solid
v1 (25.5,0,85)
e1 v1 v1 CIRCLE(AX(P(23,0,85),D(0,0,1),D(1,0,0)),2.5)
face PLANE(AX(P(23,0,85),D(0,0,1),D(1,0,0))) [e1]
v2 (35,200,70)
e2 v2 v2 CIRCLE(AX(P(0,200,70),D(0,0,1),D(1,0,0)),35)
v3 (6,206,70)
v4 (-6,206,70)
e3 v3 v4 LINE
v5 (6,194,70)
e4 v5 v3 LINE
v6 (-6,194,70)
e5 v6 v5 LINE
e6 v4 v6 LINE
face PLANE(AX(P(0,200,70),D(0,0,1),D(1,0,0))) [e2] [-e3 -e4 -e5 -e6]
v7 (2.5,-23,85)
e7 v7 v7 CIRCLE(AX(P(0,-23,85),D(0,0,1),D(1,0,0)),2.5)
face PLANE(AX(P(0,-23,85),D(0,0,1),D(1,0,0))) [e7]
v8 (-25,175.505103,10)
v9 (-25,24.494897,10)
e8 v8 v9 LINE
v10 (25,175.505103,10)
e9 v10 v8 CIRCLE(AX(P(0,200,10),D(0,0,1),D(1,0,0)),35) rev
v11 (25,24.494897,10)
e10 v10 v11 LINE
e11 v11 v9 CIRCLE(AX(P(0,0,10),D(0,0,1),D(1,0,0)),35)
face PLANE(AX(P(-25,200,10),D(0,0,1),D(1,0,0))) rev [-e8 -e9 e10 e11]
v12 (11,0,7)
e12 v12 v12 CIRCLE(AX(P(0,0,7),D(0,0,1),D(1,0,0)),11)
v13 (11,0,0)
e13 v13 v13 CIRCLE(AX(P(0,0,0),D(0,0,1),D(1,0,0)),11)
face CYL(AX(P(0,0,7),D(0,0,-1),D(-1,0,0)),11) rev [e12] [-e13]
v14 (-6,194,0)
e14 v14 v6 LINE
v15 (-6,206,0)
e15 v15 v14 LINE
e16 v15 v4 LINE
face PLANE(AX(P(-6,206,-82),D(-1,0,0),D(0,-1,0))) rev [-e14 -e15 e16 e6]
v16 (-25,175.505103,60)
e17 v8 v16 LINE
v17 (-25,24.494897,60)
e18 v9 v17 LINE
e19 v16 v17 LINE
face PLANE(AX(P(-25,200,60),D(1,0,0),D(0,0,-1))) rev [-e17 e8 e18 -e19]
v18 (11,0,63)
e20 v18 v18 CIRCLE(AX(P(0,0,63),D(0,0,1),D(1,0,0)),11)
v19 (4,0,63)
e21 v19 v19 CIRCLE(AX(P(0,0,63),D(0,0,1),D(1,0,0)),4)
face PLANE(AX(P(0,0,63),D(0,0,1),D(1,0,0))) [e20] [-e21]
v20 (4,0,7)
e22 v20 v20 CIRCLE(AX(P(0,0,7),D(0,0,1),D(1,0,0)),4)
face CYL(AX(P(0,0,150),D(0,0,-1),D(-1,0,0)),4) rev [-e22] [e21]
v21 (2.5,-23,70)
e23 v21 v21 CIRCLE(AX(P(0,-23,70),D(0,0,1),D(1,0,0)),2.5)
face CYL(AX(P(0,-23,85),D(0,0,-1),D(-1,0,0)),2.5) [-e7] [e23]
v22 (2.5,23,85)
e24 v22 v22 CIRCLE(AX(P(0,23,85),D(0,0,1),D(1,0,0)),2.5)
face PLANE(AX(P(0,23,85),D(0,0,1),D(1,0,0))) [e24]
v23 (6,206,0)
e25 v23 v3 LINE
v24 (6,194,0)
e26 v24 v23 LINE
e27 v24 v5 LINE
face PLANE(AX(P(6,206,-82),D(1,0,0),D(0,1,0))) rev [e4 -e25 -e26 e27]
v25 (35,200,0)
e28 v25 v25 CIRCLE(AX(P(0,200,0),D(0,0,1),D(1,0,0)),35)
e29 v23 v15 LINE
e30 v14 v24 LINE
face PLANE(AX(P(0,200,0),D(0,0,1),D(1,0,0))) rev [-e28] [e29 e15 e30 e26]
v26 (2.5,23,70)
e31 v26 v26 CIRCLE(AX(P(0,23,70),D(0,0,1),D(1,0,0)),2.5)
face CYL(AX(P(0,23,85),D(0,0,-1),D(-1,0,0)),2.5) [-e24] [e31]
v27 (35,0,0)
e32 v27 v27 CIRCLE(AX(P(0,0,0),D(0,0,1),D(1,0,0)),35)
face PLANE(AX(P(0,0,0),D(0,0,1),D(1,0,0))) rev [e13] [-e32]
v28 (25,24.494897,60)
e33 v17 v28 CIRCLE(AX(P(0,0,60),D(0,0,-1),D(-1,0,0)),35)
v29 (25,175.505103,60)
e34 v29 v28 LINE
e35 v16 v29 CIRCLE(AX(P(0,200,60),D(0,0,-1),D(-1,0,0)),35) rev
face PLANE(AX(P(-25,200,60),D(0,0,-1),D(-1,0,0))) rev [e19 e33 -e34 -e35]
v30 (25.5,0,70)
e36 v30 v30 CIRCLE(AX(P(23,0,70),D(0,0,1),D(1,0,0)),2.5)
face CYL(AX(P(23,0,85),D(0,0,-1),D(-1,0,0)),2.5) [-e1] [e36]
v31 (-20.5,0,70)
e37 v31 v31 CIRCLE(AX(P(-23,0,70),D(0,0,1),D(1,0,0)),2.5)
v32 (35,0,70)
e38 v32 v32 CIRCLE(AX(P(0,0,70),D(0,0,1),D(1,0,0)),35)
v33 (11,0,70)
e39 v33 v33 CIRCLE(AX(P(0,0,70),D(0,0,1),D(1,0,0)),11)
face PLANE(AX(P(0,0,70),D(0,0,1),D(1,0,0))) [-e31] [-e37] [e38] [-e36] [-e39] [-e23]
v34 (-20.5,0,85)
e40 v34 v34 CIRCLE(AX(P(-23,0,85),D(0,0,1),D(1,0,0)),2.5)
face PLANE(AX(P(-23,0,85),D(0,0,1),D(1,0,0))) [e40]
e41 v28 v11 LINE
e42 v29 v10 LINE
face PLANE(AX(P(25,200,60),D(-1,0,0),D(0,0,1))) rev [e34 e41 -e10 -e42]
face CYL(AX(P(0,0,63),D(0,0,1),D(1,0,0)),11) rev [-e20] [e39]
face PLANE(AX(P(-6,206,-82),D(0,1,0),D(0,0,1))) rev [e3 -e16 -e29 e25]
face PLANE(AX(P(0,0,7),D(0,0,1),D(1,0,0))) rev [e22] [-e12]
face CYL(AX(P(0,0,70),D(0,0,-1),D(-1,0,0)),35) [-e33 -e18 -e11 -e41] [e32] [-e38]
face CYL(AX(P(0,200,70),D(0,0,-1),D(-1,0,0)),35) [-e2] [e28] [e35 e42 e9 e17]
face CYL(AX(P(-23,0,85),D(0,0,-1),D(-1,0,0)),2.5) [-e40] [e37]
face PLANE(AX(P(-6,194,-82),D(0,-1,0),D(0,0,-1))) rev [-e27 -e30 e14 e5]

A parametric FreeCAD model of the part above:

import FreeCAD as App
import Part
import Sketcher
Q = App.Units.Quantity


def add_polygon(sketch, points):
    """Adds a closed chain of lines whose ends are joined by coincident constraints."""
    first, n = sketch.GeometryCount, len(points)
    for a, b in zip(points, points[1:] + points[:1]):
        sketch.addGeometry(Part.LineSegment(App.Vector(*a, 0), App.Vector(*b, 0)), False)
    for i in range(n):
        sketch.addConstraint(Sketcher.Constraint("Coincident", first + i, 2, first + (i + 1) % n, 1))

doc = App.newDocument("Part")
body = doc.addObject("PartDesign::Body", "Body")

# Sketch on XY plane
sketch1 = body.newObject("Sketcher::SketchObject", "Sketch")
sketch1.AttachmentSupport = (doc.getObject("XY_Plane"), [""])
sketch1.MapMode = "FlatFace"
sketch1.addGeometry(Part.Circle(App.Vector(0, 0, 0), App.Vector(0, 0, 1), 35), False)
sketch1.addConstraint([
    Sketcher.Constraint("Coincident", 0, 3, -1, 1),
    Sketcher.Constraint("Diameter", 0, Q("70 mm")),
])
pad1 = body.newObject("PartDesign::Pad", "Pad")
pad1.Profile = sketch1
pad1.Length = 70

# Sketch on XZ plane
sketch2 = body.newObject("Sketcher::SketchObject", "Sketch001")
sketch2.AttachmentSupport = (doc.getObject("XZ_Plane"), [""])
sketch2.MapMode = "FlatFace"
add_polygon(sketch2, [(-25, 10), (-25, 60), (25, 60), (25, 10)])  # lines 0-3
sketch2.addConstraint([
    Sketcher.Constraint("Vertical", 0),
    Sketcher.Constraint("Horizontal", 1),
    Sketcher.Constraint("Vertical", 2),
    Sketcher.Constraint("Horizontal", 3),
    Sketcher.Constraint("Equal", 3, 0),
    Sketcher.Constraint("DistanceX", 1, 1, 1, 2, Q("50 mm")),
    Sketcher.Constraint("DistanceX", 0, 2, -1, 1, Q("25 mm")),
    Sketcher.Constraint("DistanceY", -1, 1, 0, 2, Q("60 mm")),
])
pad2 = body.newObject("PartDesign::Pad", "Pad001")
pad2.Profile = sketch2
pad2.Length = 200
pad2.Reversed = True

# Sketch on XY plane
sketch3 = body.newObject("Sketcher::SketchObject", "Sketch002")
sketch3.AttachmentSupport = (doc.getObject("XY_Plane"), [""])
sketch3.MapMode = "FlatFace"
sketch3.addGeometry(Part.Circle(App.Vector(0, 200, 0), App.Vector(0, 0, 1), 35), False)
sketch3.addConstraint([
    Sketcher.Constraint("PointOnObject", 0, 3, -2),
    Sketcher.Constraint("Diameter", 0, Q("70 mm")),
    Sketcher.Constraint("DistanceY", -1, 1, 0, 3, Q("200 mm")),
])
pad3 = body.newObject("PartDesign::Pad", "Pad002")
pad3.Profile = sketch3
pad3.Length = 70

# Sketch on XY plane
sketch4 = body.newObject("Sketcher::SketchObject", "Sketch003")
sketch4.AttachmentSupport = (doc.getObject("XY_Plane"), [""])
sketch4.MapMode = "FlatFace"
sketch4.addGeometry(Part.Circle(App.Vector(0, 0, 0), App.Vector(0, 0, 1), 4), False)
sketch4.addConstraint([
    Sketcher.Constraint("Coincident", 0, 3, -1, 1),
    Sketcher.Constraint("Diameter", 0, Q("8 mm")),
])
pocket1 = body.newObject("PartDesign::Pocket", "Pocket")
pocket1.Profile = sketch4
pocket1.Length = 150
pocket1.Reversed = True

# Sketch on XY plane
sketch5 = body.newObject("Sketcher::SketchObject", "Sketch004")
sketch5.AttachmentSupport = (doc.getObject("XY_Plane"), [""])
sketch5.MapMode = "FlatFace"
sketch5.addGeometry(Part.Circle(App.Vector(0, 0, 0), App.Vector(0, 0, 1), 11), False)
sketch5.addConstraint([
    Sketcher.Constraint("Coincident", 0, 3, -1, 1),
    Sketcher.Constraint("Diameter", 0, Q("22 mm")),
])
pocket2 = body.newObject("PartDesign::Pocket", "Pocket001")
pocket2.Profile = sketch5
pocket2.Length = 7
pocket2.Reversed = True

# Sketch on XY plane
sketch6 = body.newObject("Sketcher::SketchObject", "Sketch005")
sketch6.AttachmentSupport = (doc.getObject("XY_Plane"), [""])
sketch6.MapMode = "FlatFace"
sketch6.AttachmentOffset = App.Placement(App.Vector(0, 0, 63), App.Rotation())
sketch6.addGeometry(Part.Circle(App.Vector(0, 0, 0), App.Vector(0, 0, 1), 11), False)
sketch6.addConstraint([
    Sketcher.Constraint("Coincident", 0, 3, -1, 1),
    Sketcher.Constraint("Diameter", 0, Q("22 mm")),
])
pocket3 = body.newObject("PartDesign::Pocket", "Pocket002")
pocket3.Profile = sketch6
pocket3.Length = 7
pocket3.Reversed = True

# Sketch on XY plane
sketch7 = body.newObject("Sketcher::SketchObject", "Sketch006")
sketch7.AttachmentSupport = (doc.getObject("XY_Plane"), [""])
sketch7.MapMode = "FlatFace"
sketch7.AttachmentOffset = App.Placement(App.Vector(0, 0, 70), App.Rotation())
sketch7.addGeometry([
    Part.Circle(App.Vector(-23, 0, 0), App.Vector(0, 0, 1), 2.5),
    Part.Circle(App.Vector(0, -23, 0), App.Vector(0, 0, 1), 2.5),
    Part.Circle(App.Vector(23, 0, 0), App.Vector(0, 0, 1), 2.5),
    Part.Circle(App.Vector(0, 23, 0), App.Vector(0, 0, 1), 2.5),
], False)
sketch7.addConstraint([
    Sketcher.Constraint("Equal", 0, 1),
    Sketcher.Constraint("Equal", 1, 2),
    Sketcher.Constraint("Equal", 2, 3),
    Sketcher.Constraint("Symmetric", 0, 3, 2, 3, -1, 1),
    Sketcher.Constraint("Symmetric", 1, 3, 3, 3, -1, 1),
    Sketcher.Constraint("PointOnObject", 0, 3, -1),
    Sketcher.Constraint("PointOnObject", 1, 3, -2),
    Sketcher.Constraint("Diameter", 0, Q("5 mm")),
    Sketcher.Constraint("DistanceX", 0, 3, -1, 1, Q("23 mm")),
    Sketcher.Constraint("DistanceY", 1, 3, -1, 1, Q("23 mm")),
])
pad4 = body.newObject("PartDesign::Pad", "Pad003")
pad4.Profile = sketch7
pad4.Length = 15

# Sketch on XY plane
sketch8 = body.newObject("Sketcher::SketchObject", "Sketch007")
sketch8.AttachmentSupport = (doc.getObject("XY_Plane"), [""])
sketch8.MapMode = "FlatFace"
sketch8.AttachmentOffset = App.Placement(App.Vector(0, 0, 70), App.Rotation())
add_polygon(sketch8, [(-6, 206), (-6, 194), (6, 194), (6, 206)])  # lines 0-3
sketch8.addConstraint([
    Sketcher.Constraint("Vertical", 0),
    Sketcher.Constraint("Horizontal", 1),
    Sketcher.Constraint("Vertical", 2),
    Sketcher.Constraint("Horizontal", 3),
    Sketcher.Constraint("Equal", 3, 0),
    Sketcher.Constraint("DistanceX", 1, 1, 1, 2, Q("12 mm")),
    Sketcher.Constraint("DistanceX", 0, 2, -1, 1, Q("6 mm")),
    Sketcher.Constraint("DistanceY", -1, 1, 0, 2, Q("194 mm")),
])
pocket4 = body.newObject("PartDesign::Pocket", "Pocket003")
pocket4.Profile = sketch8
pocket4.Length = 152

doc.recompute()
